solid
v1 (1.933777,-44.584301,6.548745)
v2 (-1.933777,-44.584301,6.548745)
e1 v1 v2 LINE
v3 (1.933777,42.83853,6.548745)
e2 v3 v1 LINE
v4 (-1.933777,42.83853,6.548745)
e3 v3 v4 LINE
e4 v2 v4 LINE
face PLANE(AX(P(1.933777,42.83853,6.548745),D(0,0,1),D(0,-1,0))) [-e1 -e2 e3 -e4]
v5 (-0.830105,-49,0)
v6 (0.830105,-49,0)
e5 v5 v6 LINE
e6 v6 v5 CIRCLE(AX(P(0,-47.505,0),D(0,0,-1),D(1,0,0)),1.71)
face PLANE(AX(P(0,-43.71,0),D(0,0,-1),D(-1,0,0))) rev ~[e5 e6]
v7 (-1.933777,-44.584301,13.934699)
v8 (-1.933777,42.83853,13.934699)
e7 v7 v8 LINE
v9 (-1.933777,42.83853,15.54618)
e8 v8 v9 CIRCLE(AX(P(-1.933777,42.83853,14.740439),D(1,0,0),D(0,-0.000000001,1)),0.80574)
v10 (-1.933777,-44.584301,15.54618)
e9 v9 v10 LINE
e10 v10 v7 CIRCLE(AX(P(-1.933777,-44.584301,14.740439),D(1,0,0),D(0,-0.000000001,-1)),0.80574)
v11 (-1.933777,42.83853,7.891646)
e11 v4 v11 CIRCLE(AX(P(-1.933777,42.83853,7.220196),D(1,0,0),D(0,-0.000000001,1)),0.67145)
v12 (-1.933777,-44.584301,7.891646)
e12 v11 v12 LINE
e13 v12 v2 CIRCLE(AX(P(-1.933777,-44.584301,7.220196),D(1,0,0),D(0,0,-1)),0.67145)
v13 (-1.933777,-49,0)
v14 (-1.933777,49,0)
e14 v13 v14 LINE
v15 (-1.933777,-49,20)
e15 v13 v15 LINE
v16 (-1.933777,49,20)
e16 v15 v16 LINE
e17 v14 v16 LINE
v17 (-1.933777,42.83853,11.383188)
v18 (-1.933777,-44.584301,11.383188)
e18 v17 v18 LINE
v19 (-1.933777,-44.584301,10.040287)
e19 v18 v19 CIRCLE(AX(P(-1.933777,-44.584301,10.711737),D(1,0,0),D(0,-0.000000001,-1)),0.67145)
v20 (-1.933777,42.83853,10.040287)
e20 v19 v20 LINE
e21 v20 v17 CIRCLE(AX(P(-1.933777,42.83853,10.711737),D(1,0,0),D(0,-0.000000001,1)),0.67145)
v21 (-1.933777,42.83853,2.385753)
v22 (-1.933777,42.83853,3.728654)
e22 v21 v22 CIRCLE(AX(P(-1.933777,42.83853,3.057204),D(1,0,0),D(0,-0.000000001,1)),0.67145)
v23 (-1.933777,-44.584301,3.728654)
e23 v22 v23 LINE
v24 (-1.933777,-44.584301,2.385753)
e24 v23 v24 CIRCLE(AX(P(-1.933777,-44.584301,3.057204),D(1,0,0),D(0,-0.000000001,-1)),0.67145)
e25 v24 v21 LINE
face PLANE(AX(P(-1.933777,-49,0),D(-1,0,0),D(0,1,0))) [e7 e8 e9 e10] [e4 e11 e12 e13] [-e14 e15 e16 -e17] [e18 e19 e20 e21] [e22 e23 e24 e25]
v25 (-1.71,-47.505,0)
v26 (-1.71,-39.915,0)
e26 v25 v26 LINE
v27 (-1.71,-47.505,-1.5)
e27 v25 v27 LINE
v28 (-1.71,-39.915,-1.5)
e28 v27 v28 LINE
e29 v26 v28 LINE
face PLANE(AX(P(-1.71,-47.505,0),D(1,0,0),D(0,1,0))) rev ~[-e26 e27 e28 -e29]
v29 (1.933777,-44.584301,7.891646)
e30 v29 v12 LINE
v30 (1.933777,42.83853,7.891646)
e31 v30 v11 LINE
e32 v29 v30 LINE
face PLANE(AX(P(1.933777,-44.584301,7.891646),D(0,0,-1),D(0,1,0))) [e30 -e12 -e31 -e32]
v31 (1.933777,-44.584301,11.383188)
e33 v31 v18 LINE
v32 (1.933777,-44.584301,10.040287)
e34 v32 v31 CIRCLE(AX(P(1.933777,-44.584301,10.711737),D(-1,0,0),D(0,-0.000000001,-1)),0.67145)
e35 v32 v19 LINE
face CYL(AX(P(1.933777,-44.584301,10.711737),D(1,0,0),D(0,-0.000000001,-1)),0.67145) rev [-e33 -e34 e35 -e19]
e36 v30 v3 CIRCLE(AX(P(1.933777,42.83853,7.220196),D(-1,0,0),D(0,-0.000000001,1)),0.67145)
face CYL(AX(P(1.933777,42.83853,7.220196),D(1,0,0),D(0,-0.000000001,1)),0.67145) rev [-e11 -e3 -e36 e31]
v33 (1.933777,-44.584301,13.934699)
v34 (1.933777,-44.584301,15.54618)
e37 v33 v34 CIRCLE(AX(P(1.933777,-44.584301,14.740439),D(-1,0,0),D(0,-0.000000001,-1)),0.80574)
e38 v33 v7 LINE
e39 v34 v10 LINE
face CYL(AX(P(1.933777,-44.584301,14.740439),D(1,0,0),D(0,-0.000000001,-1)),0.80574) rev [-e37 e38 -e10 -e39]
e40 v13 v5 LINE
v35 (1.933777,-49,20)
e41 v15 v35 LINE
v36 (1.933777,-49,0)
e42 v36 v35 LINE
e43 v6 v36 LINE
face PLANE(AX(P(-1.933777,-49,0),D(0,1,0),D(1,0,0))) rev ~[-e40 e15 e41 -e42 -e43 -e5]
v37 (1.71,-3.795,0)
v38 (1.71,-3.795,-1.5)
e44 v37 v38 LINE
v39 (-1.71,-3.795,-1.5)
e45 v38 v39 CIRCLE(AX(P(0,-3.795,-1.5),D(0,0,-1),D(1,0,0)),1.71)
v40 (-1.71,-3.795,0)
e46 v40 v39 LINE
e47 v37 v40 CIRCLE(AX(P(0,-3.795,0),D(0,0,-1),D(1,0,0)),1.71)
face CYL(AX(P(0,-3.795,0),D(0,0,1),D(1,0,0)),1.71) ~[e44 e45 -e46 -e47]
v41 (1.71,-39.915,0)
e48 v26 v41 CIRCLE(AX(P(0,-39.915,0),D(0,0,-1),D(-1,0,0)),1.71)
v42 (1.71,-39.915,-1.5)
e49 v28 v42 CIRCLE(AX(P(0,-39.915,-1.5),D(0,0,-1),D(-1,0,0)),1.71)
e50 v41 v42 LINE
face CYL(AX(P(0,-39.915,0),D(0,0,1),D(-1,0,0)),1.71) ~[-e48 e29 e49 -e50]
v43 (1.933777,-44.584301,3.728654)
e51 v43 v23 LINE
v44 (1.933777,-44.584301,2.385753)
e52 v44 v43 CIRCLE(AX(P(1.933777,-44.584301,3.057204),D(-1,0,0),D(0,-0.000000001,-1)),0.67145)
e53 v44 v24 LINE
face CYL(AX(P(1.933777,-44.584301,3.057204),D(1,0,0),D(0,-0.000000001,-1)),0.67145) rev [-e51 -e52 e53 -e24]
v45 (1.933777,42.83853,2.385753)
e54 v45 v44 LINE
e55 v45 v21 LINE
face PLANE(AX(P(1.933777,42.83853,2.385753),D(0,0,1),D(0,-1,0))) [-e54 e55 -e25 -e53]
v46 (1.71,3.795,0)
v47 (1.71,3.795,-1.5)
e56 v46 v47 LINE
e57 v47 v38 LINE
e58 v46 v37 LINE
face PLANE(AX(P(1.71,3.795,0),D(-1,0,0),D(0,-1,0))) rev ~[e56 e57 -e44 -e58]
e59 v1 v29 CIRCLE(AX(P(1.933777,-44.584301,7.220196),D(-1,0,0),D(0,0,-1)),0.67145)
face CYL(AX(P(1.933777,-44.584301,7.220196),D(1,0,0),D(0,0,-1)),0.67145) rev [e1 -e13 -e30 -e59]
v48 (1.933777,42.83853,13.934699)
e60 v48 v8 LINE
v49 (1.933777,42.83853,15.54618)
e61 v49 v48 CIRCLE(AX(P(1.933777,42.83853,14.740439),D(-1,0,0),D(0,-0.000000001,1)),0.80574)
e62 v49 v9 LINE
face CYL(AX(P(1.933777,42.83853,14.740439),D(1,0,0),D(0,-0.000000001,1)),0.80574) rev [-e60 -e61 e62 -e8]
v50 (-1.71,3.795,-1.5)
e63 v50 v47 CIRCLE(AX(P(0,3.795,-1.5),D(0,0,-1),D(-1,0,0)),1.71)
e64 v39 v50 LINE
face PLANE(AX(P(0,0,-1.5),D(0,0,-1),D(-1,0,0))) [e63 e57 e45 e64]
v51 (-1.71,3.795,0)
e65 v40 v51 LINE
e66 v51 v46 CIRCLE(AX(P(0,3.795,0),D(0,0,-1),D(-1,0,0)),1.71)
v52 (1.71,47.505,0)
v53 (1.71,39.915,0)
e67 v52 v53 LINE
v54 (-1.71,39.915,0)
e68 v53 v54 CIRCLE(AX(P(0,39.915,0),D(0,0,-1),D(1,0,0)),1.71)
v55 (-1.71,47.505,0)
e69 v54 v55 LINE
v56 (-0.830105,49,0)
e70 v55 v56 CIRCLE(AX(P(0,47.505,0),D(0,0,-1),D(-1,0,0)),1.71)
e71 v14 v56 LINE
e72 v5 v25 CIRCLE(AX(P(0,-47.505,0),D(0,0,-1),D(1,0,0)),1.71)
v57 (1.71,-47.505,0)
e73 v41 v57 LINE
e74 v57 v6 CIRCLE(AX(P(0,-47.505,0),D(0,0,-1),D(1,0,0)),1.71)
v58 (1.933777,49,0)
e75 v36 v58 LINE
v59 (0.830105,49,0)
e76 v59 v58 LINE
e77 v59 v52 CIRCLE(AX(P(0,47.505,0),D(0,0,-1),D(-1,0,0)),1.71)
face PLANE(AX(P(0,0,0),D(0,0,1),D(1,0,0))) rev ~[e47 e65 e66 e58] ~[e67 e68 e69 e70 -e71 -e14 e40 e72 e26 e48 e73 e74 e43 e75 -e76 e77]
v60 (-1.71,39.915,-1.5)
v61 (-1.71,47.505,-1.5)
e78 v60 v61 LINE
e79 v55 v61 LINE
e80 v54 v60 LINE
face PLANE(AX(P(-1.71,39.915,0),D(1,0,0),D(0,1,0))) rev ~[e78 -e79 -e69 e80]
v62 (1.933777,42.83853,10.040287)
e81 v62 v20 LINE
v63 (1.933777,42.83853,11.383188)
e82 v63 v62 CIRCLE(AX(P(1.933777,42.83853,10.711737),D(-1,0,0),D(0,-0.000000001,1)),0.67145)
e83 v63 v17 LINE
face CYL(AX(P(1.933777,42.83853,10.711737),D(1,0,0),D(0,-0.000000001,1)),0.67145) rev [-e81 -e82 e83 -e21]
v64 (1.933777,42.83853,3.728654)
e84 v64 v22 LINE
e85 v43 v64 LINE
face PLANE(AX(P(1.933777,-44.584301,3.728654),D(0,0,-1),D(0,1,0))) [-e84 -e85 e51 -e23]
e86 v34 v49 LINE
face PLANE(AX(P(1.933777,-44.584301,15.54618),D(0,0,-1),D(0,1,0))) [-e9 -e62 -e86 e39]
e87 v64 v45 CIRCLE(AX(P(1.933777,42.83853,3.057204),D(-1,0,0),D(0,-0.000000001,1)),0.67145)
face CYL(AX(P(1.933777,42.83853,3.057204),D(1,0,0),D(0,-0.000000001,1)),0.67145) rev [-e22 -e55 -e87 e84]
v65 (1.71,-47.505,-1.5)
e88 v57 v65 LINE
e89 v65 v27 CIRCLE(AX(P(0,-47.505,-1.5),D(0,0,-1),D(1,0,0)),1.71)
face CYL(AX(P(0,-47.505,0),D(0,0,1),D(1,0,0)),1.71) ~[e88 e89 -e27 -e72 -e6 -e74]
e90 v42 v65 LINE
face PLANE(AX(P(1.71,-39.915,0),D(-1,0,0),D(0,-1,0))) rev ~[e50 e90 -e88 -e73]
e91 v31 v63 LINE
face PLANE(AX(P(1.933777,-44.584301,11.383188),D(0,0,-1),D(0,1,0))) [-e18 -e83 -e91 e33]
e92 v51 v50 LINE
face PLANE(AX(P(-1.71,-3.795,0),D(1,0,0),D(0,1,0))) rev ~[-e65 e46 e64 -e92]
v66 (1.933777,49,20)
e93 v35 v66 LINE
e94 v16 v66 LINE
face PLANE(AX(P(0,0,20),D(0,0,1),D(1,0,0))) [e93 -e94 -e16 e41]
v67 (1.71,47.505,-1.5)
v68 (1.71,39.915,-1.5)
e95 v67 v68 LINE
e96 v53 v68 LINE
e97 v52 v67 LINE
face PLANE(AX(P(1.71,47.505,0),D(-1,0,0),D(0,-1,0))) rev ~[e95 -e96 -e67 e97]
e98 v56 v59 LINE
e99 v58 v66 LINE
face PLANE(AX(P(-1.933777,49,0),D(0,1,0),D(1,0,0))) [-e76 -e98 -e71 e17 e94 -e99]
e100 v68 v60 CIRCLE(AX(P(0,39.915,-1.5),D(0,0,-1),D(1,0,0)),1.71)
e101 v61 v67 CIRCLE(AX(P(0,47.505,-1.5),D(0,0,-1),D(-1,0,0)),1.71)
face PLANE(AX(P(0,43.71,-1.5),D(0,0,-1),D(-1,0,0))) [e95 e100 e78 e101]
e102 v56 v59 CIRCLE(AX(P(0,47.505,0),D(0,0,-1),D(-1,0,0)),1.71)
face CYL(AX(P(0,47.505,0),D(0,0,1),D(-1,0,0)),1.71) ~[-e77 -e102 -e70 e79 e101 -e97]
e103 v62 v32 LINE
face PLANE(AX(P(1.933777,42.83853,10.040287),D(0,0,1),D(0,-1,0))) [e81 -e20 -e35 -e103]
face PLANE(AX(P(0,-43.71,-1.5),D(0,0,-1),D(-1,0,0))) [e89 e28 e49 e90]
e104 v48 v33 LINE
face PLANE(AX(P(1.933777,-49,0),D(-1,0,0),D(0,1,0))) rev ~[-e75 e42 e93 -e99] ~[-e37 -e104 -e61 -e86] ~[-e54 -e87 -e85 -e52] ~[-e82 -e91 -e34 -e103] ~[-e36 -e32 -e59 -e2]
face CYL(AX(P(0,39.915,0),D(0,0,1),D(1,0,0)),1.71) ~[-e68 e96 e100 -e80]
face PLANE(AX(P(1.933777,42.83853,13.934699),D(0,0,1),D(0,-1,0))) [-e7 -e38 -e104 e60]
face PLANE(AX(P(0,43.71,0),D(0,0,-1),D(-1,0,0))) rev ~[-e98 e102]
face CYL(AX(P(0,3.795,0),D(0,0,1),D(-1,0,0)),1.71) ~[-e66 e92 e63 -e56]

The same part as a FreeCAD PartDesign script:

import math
import FreeCAD as App
import Part
import Sketcher
from FreeCAD import Vector


def add_polygon(sketch, points):
    """Adds a closed chain of lines whose ends are joined by coincident constraints."""
    first, n = sketch.GeometryCount, len(points)
    for a, b in zip(points, points[1:] + points[:1]):
        sketch.addGeometry(Part.LineSegment(App.Vector(*a, 0), App.Vector(*b, 0)), False)
    for i in range(n):
        sketch.addConstraint(Sketcher.Constraint("Coincident", first + i, 2, first + (i + 1) % n, 1))

doc = App.newDocument("Part")
body = doc.addObject("PartDesign::Body", "Body")

sketch1 = doc.addObject("Sketcher::SketchObject", "Sketch")
body.addObject(sketch1)
sketch1.AttachmentSupport = (doc.XY_Plane, [""])
sketch1.MapMode = "FlatFace"
add_polygon(sketch1, [(-1.933777, 49), (-1.933777, -49), (1.933777, -49), (1.933777, 49)])
sketch1.addConstraint([
    Sketcher.Constraint("Vertical", 0),
    Sketcher.Constraint("Horizontal", 1),
    Sketcher.Constraint("Vertical", 2),
    Sketcher.Constraint("Horizontal", 3),
    Sketcher.Constraint("Symmetric", 0, 2, 2, 2, -1, 1),
    Sketcher.Constraint("DistanceY", 0, 2, 0, 1, 98.0),
    Sketcher.Constraint("DistanceX", 1, 1, 1, 2, 3.867554),
])
pad1 = doc.addObject("PartDesign::Pad", "Pad")
body.addObject(pad1)
pad1.Profile = sketch1
pad1.Length = 20

sketch2 = doc.addObject("Sketcher::SketchObject", "Sketch001")
body.addObject(sketch2)
sketch2.AttachmentSupport = (doc.XY_Plane, [""])
sketch2.MapMode = "FlatFace"
sketch2.addGeometry([
    Part.LineSegment(Vector(1.71, -3.795, 0), Vector(1.71, 3.795, 0)),
    Part.ArcOfCircle(Part.Circle(Vector(0, 3.795, 0), Vector(0, 0, 1), 1.71), math.radians(0), math.radians(180)),
    Part.LineSegment(Vector(-1.71, 3.795, 0), Vector(-1.71, -3.795, 0)),
    Part.ArcOfCircle(Part.Circle(Vector(0, -3.795, 0), Vector(0, 0, 1), 1.71), math.radians(180), math.radians(360)),
    Part.LineSegment(Vector(1.71, -47.505, 0), Vector(1.71, -39.915, 0)),
    Part.ArcOfCircle(Part.Circle(Vector(0, -39.915, 0), Vector(0, 0, 1), 1.71), math.radians(0), math.radians(180)),
    Part.LineSegment(Vector(-1.71, -39.915, 0), Vector(-1.71, -47.505, 0)),
    Part.ArcOfCircle(Part.Circle(Vector(0, -47.505, 0), Vector(0, 0, 1), 1.71), math.radians(180), math.radians(360)),
    Part.LineSegment(Vector(1.71, 39.915, 0), Vector(1.71, 47.505, 0)),
    Part.ArcOfCircle(Part.Circle(Vector(0, 47.505, 0), Vector(0, 0, 1), 1.71), math.radians(0), math.radians(180)),
    Part.LineSegment(Vector(-1.71, 47.505, 0), Vector(-1.71, 39.915, 0)),
    Part.ArcOfCircle(Part.Circle(Vector(0, 39.915, 0), Vector(0, 0, 1), 1.71), math.radians(180), math.radians(360)),
], False)
sketch2.addConstraint([
    Sketcher.Constraint("Tangent", 0, 2, 1, 1),
    Sketcher.Constraint("Tangent", 1, 2, 2, 1),
    Sketcher.Constraint("Tangent", 2, 2, 3, 1),
    Sketcher.Constraint("Tangent", 3, 2, 0, 1),
    Sketcher.Constraint("Tangent", 4, 2, 5, 1),
    Sketcher.Constraint("Tangent", 5, 2, 6, 1),
    Sketcher.Constraint("Tangent", 6, 2, 7, 1),
    Sketcher.Constraint("Tangent", 7, 2, 4, 1),
    Sketcher.Constraint("Tangent", 8, 2, 9, 1),
    Sketcher.Constraint("Tangent", 9, 2, 10, 1),
    Sketcher.Constraint("Tangent", 10, 2, 11, 1),
    Sketcher.Constraint("Tangent", 11, 2, 8, 1),
    Sketcher.Constraint("Vertical", 0),
    Sketcher.Constraint("Vertical", 2),
    Sketcher.Constraint("Vertical", 4),
    Sketcher.Constraint("Vertical", 6),
    Sketcher.Constraint("Vertical", 8),
    Sketcher.Constraint("Vertical", 10),
    Sketcher.Constraint("Equal", 3, 5),
    Sketcher.Constraint("Equal", 7, 9),
    Sketcher.Constraint("Symmetric", 1, 3, 3, 3, -1, 1),
    Sketcher.Constraint("Symmetric", 7, 3, 9, 3, -1, 1),
    Sketcher.Constraint("Symmetric", 5, 3, 11, 3, -1),
    Sketcher.Constraint("Equal", 2, 4),
    Sketcher.Constraint("Radius", 1, 1.71),
    Sketcher.Constraint("DistanceY", 0, 1, 0, 2, 7.59),
    Sketcher.Constraint("DistanceY", 7, 3, 1, 3, 51.3),
])
pad2 = doc.addObject("PartDesign::Pad", "Pad001")
body.addObject(pad2)
pad2.Profile = sketch2
pad2.Length = 1.5
pad2.Reversed = True

sketch3 = doc.addObject("Sketcher::SketchObject", "Sketch002")
body.addObject(sketch3)
sketch3.AttachmentSupport = (doc.YZ_Plane, [""])
sketch3.MapMode = "FlatFace"
sketch3.AttachmentOffset = App.Placement(Vector(0, 0, 1.933777), App.Rotation())
sketch3.addGeometry([
    Part.LineSegment(Vector(-44.584301, 13.934699, 0), Vector(42.83853, 13.934699, 0)),
    Part.ArcOfCircle(Part.Circle(Vector(42.83853, 14.740439, 0), Vector(0, 0, 1), 0.80574), math.radians(-90), math.radians(90)),
    Part.LineSegment(Vector(42.83853, 15.54618, 0), Vector(-44.584301, 15.54618, 0)),
    Part.ArcOfCircle(Part.Circle(Vector(-44.584301, 14.740439, 0), Vector(0, 0, 1), 0.80574), math.radians(90), math.radians(270)),
    Part.LineSegment(Vector(-44.584301, 10.040287, 0), Vector(42.83853, 10.040287, 0)),
    Part.ArcOfCircle(Part.Circle(Vector(42.83853, 10.711737, 0), Vector(0, 0, 1), 0.67145), math.radians(-90), math.radians(90)),
    Part.LineSegment(Vector(42.83853, 11.383188, 0), Vector(-44.584301, 11.383188, 0)),
    Part.ArcOfCircle(Part.Circle(Vector(-44.584301, 10.711737, 0), Vector(0, 0, 1), 0.67145), math.radians(90), math.radians(270)),
    Part.LineSegment(Vector(-44.584301, 6.548745, 0), Vector(42.83853, 6.548745, 0)),
    Part.ArcOfCircle(Part.Circle(Vector(42.83853, 7.220196, 0), Vector(0, 0, 1), 0.67145), math.radians(-90), math.radians(90)),
    Part.LineSegment(Vector(42.83853, 7.891646, 0), Vector(-44.584301, 7.891646, 0)),
    Part.ArcOfCircle(Part.Circle(Vector(-44.584301, 7.220196, 0), Vector(0, 0, 1), 0.67145), math.radians(90), math.radians(270)),
    Part.LineSegment(Vector(-44.584301, 2.385753, 0), Vector(42.83853, 2.385753, 0)),
    Part.ArcOfCircle(Part.Circle(Vector(42.83853, 3.057204, 0), Vector(0, 0, 1), 0.67145), math.radians(-90), math.radians(90)),
    Part.LineSegment(Vector(42.83853, 3.728654, 0), Vector(-44.584301, 3.728654, 0)),
    Part.ArcOfCircle(Part.Circle(Vector(-44.584301, 3.057204, 0), Vector(0, 0, 1), 0.67145), math.radians(90), math.radians(270)),
], False)
sketch3.addConstraint([
    Sketcher.Constraint("Tangent", 0, 2, 1, 1),
    Sketcher.Constraint("Tangent", 1, 2, 2, 1),
    Sketcher.Constraint("Tangent", 2, 2, 3, 1),
    Sketcher.Constraint("Tangent", 3, 2, 0, 1),
    Sketcher.Constraint("Tangent", 4, 2, 5, 1),
    Sketcher.Constraint("Tangent", 5, 2, 6, 1),
    Sketcher.Constraint("Tangent", 6, 2, 7, 1),
    Sketcher.Constraint("Tangent", 7, 2, 4, 1),
    Sketcher.Constraint("Tangent", 8, 2, 9, 1),
    Sketcher.Constraint("Tangent", 9, 2, 10, 1),
    Sketcher.Constraint("Tangent", 10, 2, 11, 1),
    Sketcher.Constraint("Tangent", 11, 2, 8, 1),
    Sketcher.Constraint("Tangent", 12, 2, 13, 1),
    Sketcher.Constraint("Tangent", 13, 2, 14, 1),
    Sketcher.Constraint("Tangent", 14, 2, 15, 1),
    Sketcher.Constraint("Tangent", 15, 2, 12, 1),
    Sketcher.Constraint("Horizontal", 0),
    Sketcher.Constraint("Horizontal", 2),
    Sketcher.Constraint("Horizontal", 4),
    Sketcher.Constraint("Horizontal", 6),
    Sketcher.Constraint("Horizontal", 8),
    Sketcher.Constraint("Horizontal", 10),
    Sketcher.Constraint("Horizontal", 12),
    Sketcher.Constraint("Horizontal", 14),
    Sketcher.Constraint("Equal", 7, 9),
    Sketcher.Constraint("Equal", 11, 13),
    Sketcher.Constraint("Vertical", 1, 3, 5, 3),
    Sketcher.Constraint("Vertical", 3, 3, 7, 3),
    Sketcher.Constraint("Vertical", 5, 3, 9, 3),
    Sketcher.Constraint("Vertical", 7, 3, 11, 3),
    Sketcher.Constraint("Vertical", 9, 3, 13, 3),
    Sketcher.Constraint("Vertical", 11, 3, 15, 3),
    Sketcher.Constraint("Radius", 1, 0.80574),
    Sketcher.Constraint("Radius", 5, 0.67145),
    Sketcher.Constraint("DistanceX", 0, 1, 0, 2, 87.422831),
    Sketcher.Constraint("DistanceX", 3, 3, -1, 1, 44.584301),
    Sketcher.Constraint("DistanceY", -1, 1, 0, 2, 13.934699),
    Sketcher.Constraint("DistanceY", 5, 3, 1, 3, 4.028702),
    Sketcher.Constraint("DistanceY", 9, 3, 5, 3, 3.491542),
    Sketcher.Constraint("DistanceY", 13, 3, 9, 3, 4.162992),
])
pocket1 = doc.addObject("PartDesign::Pocket", "Pocket")
body.addObject(pocket1)
pocket1.Profile = sketch3
pocket1.Type = "ThroughAll"

doc.recompute()
